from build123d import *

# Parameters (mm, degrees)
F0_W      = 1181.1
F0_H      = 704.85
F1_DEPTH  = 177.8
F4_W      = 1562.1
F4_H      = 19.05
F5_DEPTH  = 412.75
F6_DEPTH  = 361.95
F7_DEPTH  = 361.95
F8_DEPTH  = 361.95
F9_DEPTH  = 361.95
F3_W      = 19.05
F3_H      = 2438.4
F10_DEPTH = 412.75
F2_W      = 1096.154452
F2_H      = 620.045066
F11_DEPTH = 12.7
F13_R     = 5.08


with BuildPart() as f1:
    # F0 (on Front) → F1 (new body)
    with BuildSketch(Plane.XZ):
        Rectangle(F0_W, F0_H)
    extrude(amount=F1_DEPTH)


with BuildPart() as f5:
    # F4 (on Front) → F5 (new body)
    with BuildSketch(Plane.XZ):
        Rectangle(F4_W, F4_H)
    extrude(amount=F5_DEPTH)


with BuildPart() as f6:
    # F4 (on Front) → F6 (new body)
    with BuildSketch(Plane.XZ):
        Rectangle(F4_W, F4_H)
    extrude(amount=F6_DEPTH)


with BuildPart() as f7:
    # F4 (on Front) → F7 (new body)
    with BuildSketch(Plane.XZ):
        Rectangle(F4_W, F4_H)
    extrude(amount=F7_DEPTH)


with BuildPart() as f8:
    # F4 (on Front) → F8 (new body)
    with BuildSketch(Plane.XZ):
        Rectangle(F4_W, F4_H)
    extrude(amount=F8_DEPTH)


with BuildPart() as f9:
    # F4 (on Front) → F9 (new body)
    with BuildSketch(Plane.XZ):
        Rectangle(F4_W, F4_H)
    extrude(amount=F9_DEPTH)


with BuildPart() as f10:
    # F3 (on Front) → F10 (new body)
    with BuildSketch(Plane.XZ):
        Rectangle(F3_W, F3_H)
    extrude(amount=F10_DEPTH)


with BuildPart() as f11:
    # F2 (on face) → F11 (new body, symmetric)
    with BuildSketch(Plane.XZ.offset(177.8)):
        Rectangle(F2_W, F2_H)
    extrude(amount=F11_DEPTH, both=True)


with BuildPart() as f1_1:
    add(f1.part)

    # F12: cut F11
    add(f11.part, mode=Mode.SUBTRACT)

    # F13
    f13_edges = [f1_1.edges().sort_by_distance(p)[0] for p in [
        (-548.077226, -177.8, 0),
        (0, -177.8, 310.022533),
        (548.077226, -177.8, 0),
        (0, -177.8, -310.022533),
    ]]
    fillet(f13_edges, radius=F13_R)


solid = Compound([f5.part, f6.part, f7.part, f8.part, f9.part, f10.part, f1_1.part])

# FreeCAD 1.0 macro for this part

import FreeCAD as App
import Part
import Sketcher

V = App.Vector
Q = App.Units.Quantity


def edges_at(feature, points):
    """Names of the edges that pass closest to the given points."""
    edges = feature.Shape.Edges
    near = lambda p: min(range(len(edges)), key=lambda i: edges[i].distToShape(Part.Vertex(*p))[0])
    return sorted({f"Edge{near(p) + 1}" for p in points})


def add_polygon(sketch, points):
    """Adds a closed chain of lines whose ends are joined by coincident constraints."""
    first, n = sketch.GeometryCount, len(points)
    for a, b in zip(points, points[1:] + points[:1]):
        sketch.addGeometry(Part.LineSegment(App.Vector(*a, 0), App.Vector(*b, 0)), False)
    for i in range(n):
        sketch.addConstraint(Sketcher.Constraint("Coincident", first + i, 2, first + (i + 1) % n, 1))

doc = App.newDocument("Part")
body = doc.addObject("PartDesign::Body", "Body")

sketch1 = doc.addObject("Sketcher::SketchObject", "Sketch")
body.addObject(sketch1)
sketch1.AttachmentSupport = (doc.XZ_Plane, [""])
sketch1.MapMode = "FlatFace"
add_polygon(sketch1, [(-590.55, 352.425), (-590.55, -352.425), (590.55, -352.425), (590.55, 352.425)])
sketch1.addConstraint(Sketcher.Constraint("Vertical", 0))
sketch1.addConstraint(Sketcher.Constraint("Horizontal", 1))
sketch1.addConstraint(Sketcher.Constraint("Vertical", 2))
sketch1.addConstraint(Sketcher.Constraint("Horizontal", 3))
sketch1.addConstraint(Sketcher.Constraint("Symmetric", 0, 2, 2, 2, -1, 1))
sketch1.addConstraint(Sketcher.Constraint("DistanceX", 1, 1, 1, 2, Q("46.5 in")))
sketch1.addConstraint(Sketcher.Constraint("DistanceY", 0, 2, 0, 1, Q("27.75 in")))
pad1 = doc.addObject("PartDesign::Pad", "Pad")
body.addObject(pad1)
pad1.Profile = sketch1
pad1.Length = Q("7 in")
body2 = doc.addObject("PartDesign::Body", "Body001")

sketch2 = doc.addObject("Sketcher::SketchObject", "Sketch001")
body2.addObject(sketch2)
sketch2.AttachmentSupport = (doc.getObject("XZ_Plane001"), [""])
sketch2.MapMode = "FlatFace"
add_polygon(sketch2, [(-781.05, 9.525), (-781.05, -9.525), (781.05, -9.525), (781.05, 9.525)])
sketch2.addConstraint(Sketcher.Constraint("Vertical", 0))
sketch2.addConstraint(Sketcher.Constraint("Horizontal", 1))
sketch2.addConstraint(Sketcher.Constraint("Vertical", 2))
sketch2.addConstraint(Sketcher.Constraint("Horizontal", 3))
sketch2.addConstraint(Sketcher.Constraint("Symmetric", 0, 2, 2, 2, -1, 1))
sketch2.addConstraint(Sketcher.Constraint("DistanceX", 1, 1, 1, 2, Q("61.5 in")))
sketch2.addConstraint(Sketcher.Constraint("DistanceY", 0, 2, 0, 1, Q("0.75 in")))
pad2 = doc.addObject("PartDesign::Pad", "Pad001")
body2.addObject(pad2)
pad2.Profile = sketch2
pad2.Length = Q("16.25 in")
body3 = doc.addObject("PartDesign::Body", "Body002")

sketch3 = doc.addObject("Sketcher::SketchObject", "Sketch002")
body3.addObject(sketch3)
sketch3.AttachmentSupport = (doc.getObject("XZ_Plane002"), [""])
sketch3.MapMode = "FlatFace"
add_polygon(sketch3, [(-781.05, 9.525), (-781.05, -9.525), (781.05, -9.525), (781.05, 9.525)])
sketch3.addConstraint(Sketcher.Constraint("Vertical", 0))
sketch3.addConstraint(Sketcher.Constraint("Horizontal", 1))
sketch3.addConstraint(Sketcher.Constraint("Vertical", 2))
sketch3.addConstraint(Sketcher.Constraint("Horizontal", 3))
sketch3.addConstraint(Sketcher.Constraint("Symmetric", 0, 2, 2, 2, -1, 1))
sketch3.addConstraint(Sketcher.Constraint("DistanceX", 1, 1, 1, 2, Q("61.5 in")))
sketch3.addConstraint(Sketcher.Constraint("DistanceY", 0, 2, 0, 1, Q("0.75 in")))
pad3 = doc.addObject("PartDesign::Pad", "Pad002")
body3.addObject(pad3)
pad3.Profile = sketch3
pad3.Length = Q("14.25 in")
body4 = doc.addObject("PartDesign::Body", "Body003")

sketch4 = doc.addObject("Sketcher::SketchObject", "Sketch003")
body4.addObject(sketch4)
sketch4.AttachmentSupport = (doc.getObject("XZ_Plane003"), [""])
sketch4.MapMode = "FlatFace"
add_polygon(sketch4, [(-781.05, 9.525), (-781.05, -9.525), (781.05, -9.525), (781.05, 9.525)])
sketch4.addConstraint(Sketcher.Constraint("Vertical", 0))
sketch4.addConstraint(Sketcher.Constraint("Horizontal", 1))
sketch4.addConstraint(Sketcher.Constraint("Vertical", 2))
sketch4.addConstraint(Sketcher.Constraint("Horizontal", 3))
sketch4.addConstraint(Sketcher.Constraint("Symmetric", 0, 2, 2, 2, -1, 1))
sketch4.addConstraint(Sketcher.Constraint("DistanceX", 1, 1, 1, 2, Q("61.5 in")))
sketch4.addConstraint(Sketcher.Constraint("DistanceY", 0, 2, 0, 1, Q("0.75 in")))
pad4 = doc.addObject("PartDesign::Pad", "Pad003")
body4.addObject(pad4)
pad4.Profile = sketch4
pad4.Length = Q("14.25 in")
body5 = doc.addObject("PartDesign::Body", "Body004")

sketch5 = doc.addObject("Sketcher::SketchObject", "Sketch004")
body5.addObject(sketch5)
sketch5.AttachmentSupport = (doc.getObject("XZ_Plane004"), [""])
sketch5.MapMode = "FlatFace"
add_polygon(sketch5, [(-781.05, 9.525), (-781.05, -9.525), (781.05, -9.525), (781.05, 9.525)])
sketch5.addConstraint(Sketcher.Constraint("Vertical", 0))
sketch5.addConstraint(Sketcher.Constraint("Horizontal", 1))
sketch5.addConstraint(Sketcher.Constraint("Vertical", 2))
sketch5.addConstraint(Sketcher.Constraint("Horizontal", 3))
sketch5.addConstraint(Sketcher.Constraint("Symmetric", 0, 2, 2, 2, -1, 1))
sketch5.addConstraint(Sketcher.Constraint("DistanceX", 1, 1, 1, 2, Q("61.5 in")))
sketch5.addConstraint(Sketcher.Constraint("DistanceY", 0, 2, 0, 1, Q("0.75 in")))
pad5 = doc.addObject("PartDesign::Pad", "Pad004")
body5.addObject(pad5)
pad5.Profile = sketch5
pad5.Length = Q("14.25 in")
body6 = doc.addObject("PartDesign::Body", "Body005")

sketch6 = doc.addObject("Sketcher::SketchObject", "Sketch005")
body6.addObject(sketch6)
sketch6.AttachmentSupport = (doc.getObject("XZ_Plane005"), [""])
sketch6.MapMode = "FlatFace"
add_polygon(sketch6, [(-781.05, 9.525), (-781.05, -9.525), (781.05, -9.525), (781.05, 9.525)])
sketch6.addConstraint(Sketcher.Constraint("Vertical", 0))
sketch6.addConstraint(Sketcher.Constraint("Horizontal", 1))
sketch6.addConstraint(Sketcher.Constraint("Vertical", 2))
sketch6.addConstraint(Sketcher.Constraint("Horizontal", 3))
sketch6.addConstraint(Sketcher.Constraint("Symmetric", 0, 2, 2, 2, -1, 1))
sketch6.addConstraint(Sketcher.Constraint("DistanceX", 1, 1, 1, 2, Q("61.5 in")))
sketch6.addConstraint(Sketcher.Constraint("DistanceY", 0, 2, 0, 1, Q("0.75 in")))
pad6 = doc.addObject("PartDesign::Pad", "Pad005")
body6.addObject(pad6)
pad6.Profile = sketch6
pad6.Length = Q("14.25 in")
body7 = doc.addObject("PartDesign::Body", "Body006")

sketch7 = doc.addObject("Sketcher::SketchObject", "Sketch006")
body7.addObject(sketch7)
sketch7.AttachmentSupport = (doc.getObject("XZ_Plane006"), [""])
sketch7.MapMode = "FlatFace"
add_polygon(sketch7, [(-9.525, 1219.2), (-9.525, -1219.2), (9.525, -1219.2), (9.525, 1219.2)])
sketch7.addConstraint(Sketcher.Constraint("Vertical", 0))
sketch7.addConstraint(Sketcher.Constraint("Horizontal", 1))
sketch7.addConstraint(Sketcher.Constraint("Vertical", 2))
sketch7.addConstraint(Sketcher.Constraint("Horizontal", 3))
sketch7.addConstraint(Sketcher.Constraint("Symmetric", 0, 2, 2, 2, -1, 1))
sketch7.addConstraint(Sketcher.Constraint("DistanceY", 0, 2, 0, 1, Q("96 in")))
sketch7.addConstraint(Sketcher.Constraint("DistanceX", 1, 1, 1, 2, Q("0.75 in")))
pad7 = doc.addObject("PartDesign::Pad", "Pad006")
body7.addObject(pad7)
pad7.Profile = sketch7
pad7.Length = Q("16.25 in")
body8 = doc.addObject("PartDesign::Body", "Body007")

sketch8 = doc.addObject("Sketcher::SketchObject", "Sketch007")
body8.addObject(sketch8)
sketch8.AttachmentSupport = (doc.getObject("XZ_Plane007"), [""])
sketch8.MapMode = "FlatFace"
sketch8.AttachmentOffset = App.Placement(V(0, 0, 7 * 25.4), App.Rotation())
add_polygon(sketch8, [(-548.077226, 310.022533), (-548.077226, -310.022533), (548.077226, -310.022533), (548.077226, 310.022533)])
sketch8.addConstraint(Sketcher.Constraint("Vertical", 0))
sketch8.addConstraint(Sketcher.Constraint("Horizontal", 1))
sketch8.addConstraint(Sketcher.Constraint("Vertical", 2))
sketch8.addConstraint(Sketcher.Constraint("Horizontal", 3))
sketch8.addConstraint(Sketcher.Constraint("Symmetric", 0, 2, 2, 2, -1, 1))
sketch8.addConstraint(Sketcher.Constraint("DistanceX", 1, 1, 1, 2, 1096.154452))
sketch8.addConstraint(Sketcher.Constraint("DistanceY", 0, 2, 0, 1, 620.045066))
pad8 = doc.addObject("PartDesign::Pad", "Pad007")
body8.addObject(pad8)
pad8.Profile = sketch8
pad8.Length = Q("1 in")
pad8.Midplane = True
doc.recompute()

boolean = doc.addObject("PartDesign::Boolean", "Boolean")
body.addObject(boolean)
boolean.Type = "Cut"
boolean.addObjects([body8])
doc.recompute()

fillet = doc.addObject("PartDesign::Fillet", "Fillet")
body.addObject(fillet)
fillet.Base = (boolean, edges_at(boolean, [
    (-548.077, -177.8, 0),
    (0, -177.8, 310.023),
    (548.077, -177.8, 0),
    (0, -177.8, -310.023),
]))
fillet.Radius = Q("0.2 in")

doc.recompute()
